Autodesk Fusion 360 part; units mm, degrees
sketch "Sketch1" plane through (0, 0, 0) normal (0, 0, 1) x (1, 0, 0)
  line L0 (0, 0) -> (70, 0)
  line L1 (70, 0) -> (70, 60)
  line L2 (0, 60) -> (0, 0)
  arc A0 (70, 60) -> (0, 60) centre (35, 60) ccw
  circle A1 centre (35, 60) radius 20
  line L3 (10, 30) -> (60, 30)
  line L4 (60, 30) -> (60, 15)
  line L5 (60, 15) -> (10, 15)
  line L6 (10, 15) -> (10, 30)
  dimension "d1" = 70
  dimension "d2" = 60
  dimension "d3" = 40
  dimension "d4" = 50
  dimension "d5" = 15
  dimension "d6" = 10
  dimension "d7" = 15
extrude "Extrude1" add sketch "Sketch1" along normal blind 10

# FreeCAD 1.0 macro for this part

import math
import FreeCAD as App
import Part
import Sketcher
from FreeCAD import Vector


def add_polygon(sketch, points):
    """Adds a closed chain of lines whose ends are joined by coincident constraints."""
    first, n = sketch.GeometryCount, len(points)
    for a, b in zip(points, points[1:] + points[:1]):
        sketch.addGeometry(Part.LineSegment(App.Vector(*a, 0), App.Vector(*b, 0)), False)
    for i in range(n):
        sketch.addConstraint(Sketcher.Constraint("Coincident", first + i, 2, first + (i + 1) % n, 1))

doc = App.newDocument("Part")
body = doc.addObject("PartDesign::Body", "Body")

# Sketch on XY plane
sketch1 = doc.addObject("Sketcher::SketchObject", "Sketch")
body.addObject(sketch1)
sketch1.AttachmentSupport = (doc.XY_Plane, [""])
sketch1.MapMode = "FlatFace"
sketch1.addGeometry(Part.LineSegment(Vector(0, 60, 0), Vector(0, 0, 0)), False)  # 0
sketch1.addGeometry(Part.LineSegment(Vector(0, 0, 0), Vector(70, 0, 0)), False)  # 1
sketch1.addGeometry(Part.LineSegment(Vector(70, 0, 0), Vector(70, 60, 0)), False)  # 2
sketch1.addGeometry(Part.ArcOfCircle(Part.Circle(Vector(35, 60, 0), Vector(0, 0, 1), 35), math.radians(0), math.radians(180)), False)  # 3
add_polygon(sketch1, [(10, 15), (10, 30), (60, 30), (60, 15)])  # lines 4-7
sketch1.addGeometry(Part.Circle(Vector(35, 60, 0), Vector(0, 0, 1), 20), False)  # 8
sketch1.addConstraint([
    Sketcher.Constraint("Coincident", 0, 2, 1, 1),
    Sketcher.Constraint("Coincident", 1, 2, 2, 1),
    Sketcher.Constraint("Tangent", 2, 2, 3, 1),
    Sketcher.Constraint("Tangent", 3, 2, 0, 1),
    Sketcher.Constraint("Vertical", 0),
    Sketcher.Constraint("Horizontal", 1),
    Sketcher.Constraint("Vertical", 2),
    Sketcher.Constraint("Vertical", 4),
    Sketcher.Constraint("Horizontal", 5),
    Sketcher.Constraint("Vertical", 6),
    Sketcher.Constraint("Horizontal", 7),
    Sketcher.Constraint("Coincident", 0, 2, -1, 1),
    Sketcher.Constraint("Coincident", 8, 3, 3, 3),
    Sketcher.Constraint("Diameter", 8, 40.0),
    Sketcher.Constraint("Radius", 3, 35.0),
    Sketcher.Constraint("DistanceX", 5, 1, 5, 2, 50.0),
    Sketcher.Constraint("DistanceY", 0, 2, 0, 1, 60.0),
    Sketcher.Constraint("DistanceY", 4, 1, 4, 2, 15.0),
    Sketcher.Constraint("DistanceX", -1, 1, 4, 2, 10.0),
    Sketcher.Constraint("DistanceY", -1, 1, 6, 2, 15.0),
])
pad1 = doc.addObject("PartDesign::Pad", "Pad")
body.addObject(pad1)
pad1.Profile = sketch1
pad1.Length = 10

doc.recompute()
